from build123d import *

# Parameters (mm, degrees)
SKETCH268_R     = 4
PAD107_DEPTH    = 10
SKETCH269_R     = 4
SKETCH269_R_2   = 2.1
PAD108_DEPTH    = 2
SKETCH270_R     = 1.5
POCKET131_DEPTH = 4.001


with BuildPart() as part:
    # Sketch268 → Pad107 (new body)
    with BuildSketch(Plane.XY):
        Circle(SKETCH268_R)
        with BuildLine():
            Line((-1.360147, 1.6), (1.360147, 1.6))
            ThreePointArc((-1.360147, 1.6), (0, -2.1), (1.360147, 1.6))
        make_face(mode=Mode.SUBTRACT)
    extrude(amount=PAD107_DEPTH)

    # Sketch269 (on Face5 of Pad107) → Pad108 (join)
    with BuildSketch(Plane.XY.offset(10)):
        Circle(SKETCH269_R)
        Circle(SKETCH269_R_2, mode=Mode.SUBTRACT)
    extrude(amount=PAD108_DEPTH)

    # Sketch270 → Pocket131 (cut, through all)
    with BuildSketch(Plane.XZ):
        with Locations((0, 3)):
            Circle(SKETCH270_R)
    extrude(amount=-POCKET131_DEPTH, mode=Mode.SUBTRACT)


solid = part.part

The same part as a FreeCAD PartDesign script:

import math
import FreeCAD as App
import Part
import Sketcher

doc = App.newDocument("Part")
body = doc.addObject("PartDesign::Body", "Body")

sketch1 = body.newObject("Sketcher::SketchObject", "Sketch")
sketch1.AttachmentSupport = (doc.getObject("XY_Plane"), [""])
sketch1.MapMode = "FlatFace"
sketch1.addGeometry([
    Part.Circle(App.Vector(0, 0, 0), App.Vector(0, 0, 1), 4),
    Part.ArcOfCircle(Part.Circle(App.Vector(0, 0, 0), App.Vector(0, 0, 1), 2.1), math.radians(130.367592), math.radians(409.632408)),
    Part.LineSegment(App.Vector(-1.360147, 1.6, 0), App.Vector(1.360147, 1.6, 0)),
], False)
sketch1.addConstraint([
    Sketcher.Constraint("Coincident", 1, 1, 2, 1),
    Sketcher.Constraint("Coincident", 2, 2, 1, 2),
    Sketcher.Constraint("Horizontal", 2),
    Sketcher.Constraint("Coincident", 0, 3, -1, 1),
    Sketcher.Constraint("Coincident", 1, 3, -1, 1),
    Sketcher.Constraint("Diameter", 0, 8.0),
    Sketcher.Constraint("Radius", 1, 2.1),
    Sketcher.Constraint("DistanceY", -1, 1, 1, 1, 1.6),
])
pad1 = body.newObject("PartDesign::Pad", "Pad")
pad1.Profile = sketch1
pad1.Length = 10

sketch2 = body.newObject("Sketcher::SketchObject", "Sketch001")
sketch2.AttachmentSupport = (doc.getObject("XY_Plane"), [""])
sketch2.MapMode = "FlatFace"
sketch2.AttachmentOffset = App.Placement(App.Vector(0, 0, 10), App.Rotation())
sketch2.addGeometry([
    Part.Circle(App.Vector(0, 0, 0), App.Vector(0, 0, 1), 4),
    Part.Circle(App.Vector(0, 0, 0), App.Vector(0, 0, 1), 2.1),
], False)
sketch2.addConstraint([
    Sketcher.Constraint("Coincident", 0, 3, -1, 1),
    Sketcher.Constraint("Coincident", 1, 3, -1, 1),
    Sketcher.Constraint("Diameter", 0, 8.0),
    Sketcher.Constraint("Diameter", 1, 4.2),
])
pad2 = body.newObject("PartDesign::Pad", "Pad001")
pad2.Profile = sketch2
pad2.Length = 2

sketch3 = body.newObject("Sketcher::SketchObject", "Sketch002")
sketch3.AttachmentSupport = (doc.getObject("XZ_Plane"), [""])
sketch3.MapMode = "FlatFace"
sketch3.addGeometry(Part.Circle(App.Vector(0, 3, 0), App.Vector(0, 0, 1), 1.5), False)
sketch3.addConstraint([
    Sketcher.Constraint("PointOnObject", 0, 3, -2),
    Sketcher.Constraint("Diameter", 0, 3.0),
    Sketcher.Constraint("DistanceY", -1, 1, 0, 3, 3.0),
])
pocket1 = body.newObject("PartDesign::Pocket", "Pocket")
pocket1.Profile = sketch3
pocket1.Type = "ThroughAll"

doc.recompute()
